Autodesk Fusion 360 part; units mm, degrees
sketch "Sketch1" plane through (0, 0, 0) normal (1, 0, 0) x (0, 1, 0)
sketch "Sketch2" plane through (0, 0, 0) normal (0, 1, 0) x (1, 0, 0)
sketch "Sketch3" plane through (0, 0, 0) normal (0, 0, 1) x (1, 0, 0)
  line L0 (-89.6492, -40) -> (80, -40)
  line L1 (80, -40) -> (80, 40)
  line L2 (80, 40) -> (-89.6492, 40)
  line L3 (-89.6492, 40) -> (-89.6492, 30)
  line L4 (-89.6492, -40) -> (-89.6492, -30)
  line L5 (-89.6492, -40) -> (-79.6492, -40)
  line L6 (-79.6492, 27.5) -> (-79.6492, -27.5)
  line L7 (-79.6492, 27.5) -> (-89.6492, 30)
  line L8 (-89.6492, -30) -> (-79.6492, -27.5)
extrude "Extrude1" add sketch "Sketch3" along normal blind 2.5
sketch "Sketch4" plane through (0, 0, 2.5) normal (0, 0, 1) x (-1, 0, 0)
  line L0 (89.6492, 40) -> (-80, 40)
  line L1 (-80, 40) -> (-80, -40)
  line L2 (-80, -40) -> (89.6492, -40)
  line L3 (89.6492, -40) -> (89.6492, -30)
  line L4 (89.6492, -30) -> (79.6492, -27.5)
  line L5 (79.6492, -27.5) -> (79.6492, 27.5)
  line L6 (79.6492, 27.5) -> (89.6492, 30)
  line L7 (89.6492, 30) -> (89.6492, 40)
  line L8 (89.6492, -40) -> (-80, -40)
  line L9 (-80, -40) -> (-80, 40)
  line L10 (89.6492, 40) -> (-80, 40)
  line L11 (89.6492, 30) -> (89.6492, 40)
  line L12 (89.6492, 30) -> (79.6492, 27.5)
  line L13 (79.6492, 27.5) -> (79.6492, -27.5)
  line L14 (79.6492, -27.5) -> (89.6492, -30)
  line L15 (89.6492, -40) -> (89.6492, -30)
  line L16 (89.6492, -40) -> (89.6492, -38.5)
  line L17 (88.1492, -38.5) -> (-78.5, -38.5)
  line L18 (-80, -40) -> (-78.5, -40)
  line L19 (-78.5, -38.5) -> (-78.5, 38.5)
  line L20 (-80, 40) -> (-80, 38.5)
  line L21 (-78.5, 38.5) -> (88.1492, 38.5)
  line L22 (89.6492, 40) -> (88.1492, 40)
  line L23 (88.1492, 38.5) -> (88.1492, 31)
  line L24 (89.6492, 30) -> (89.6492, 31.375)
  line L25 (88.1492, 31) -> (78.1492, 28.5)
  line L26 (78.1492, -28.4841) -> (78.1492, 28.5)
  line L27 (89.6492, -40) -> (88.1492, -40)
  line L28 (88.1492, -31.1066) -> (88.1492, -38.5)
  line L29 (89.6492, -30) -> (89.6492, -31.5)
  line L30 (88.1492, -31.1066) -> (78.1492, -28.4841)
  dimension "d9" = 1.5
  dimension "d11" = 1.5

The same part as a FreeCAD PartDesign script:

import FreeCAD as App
import Part
import Sketcher

doc = App.newDocument("Part")
body = doc.addObject("PartDesign::Body", "Body")

sketch1 = doc.addObject("Sketcher::SketchObject", "Sketch")
body.addObject(sketch1)
sketch1.AttachmentSupport = (doc.XY_Plane, [""])
sketch1.MapMode = "FlatFace"
sketch1.addGeometry([
    Part.LineSegment(App.Vector(-89.6492, -30, 0), App.Vector(-89.6492, -40, 0)),
    Part.LineSegment(App.Vector(-89.6492, -40, 0), App.Vector(80, -40, 0)),
    Part.LineSegment(App.Vector(80, -40, 0), App.Vector(80, 40, 0)),
    Part.LineSegment(App.Vector(80, 40, 0), App.Vector(-89.6492, 40, 0)),
    Part.LineSegment(App.Vector(-89.6492, 40, 0), App.Vector(-89.6492, 30, 0)),
    Part.LineSegment(App.Vector(-89.6492, 30, 0), App.Vector(-79.6492, 27.5, 0)),
    Part.LineSegment(App.Vector(-79.6492, 27.5, 0), App.Vector(-79.6492, -27.5, 0)),
    Part.LineSegment(App.Vector(-79.6492, -27.5, 0), App.Vector(-89.6492, -30, 0)),
], False)
sketch1.addConstraint([
    Sketcher.Constraint("Coincident", 0, 2, 1, 1),
    Sketcher.Constraint("Coincident", 1, 2, 2, 1),
    Sketcher.Constraint("Coincident", 2, 2, 3, 1),
    Sketcher.Constraint("Coincident", 3, 2, 4, 1),
    Sketcher.Constraint("Coincident", 4, 2, 5, 1),
    Sketcher.Constraint("Coincident", 5, 2, 6, 1),
    Sketcher.Constraint("Coincident", 6, 2, 7, 1),
    Sketcher.Constraint("Coincident", 7, 2, 0, 1),
    Sketcher.Constraint("Vertical", 0),
    Sketcher.Constraint("Horizontal", 1),
    Sketcher.Constraint("Vertical", 2),
    Sketcher.Constraint("Horizontal", 3),
    Sketcher.Constraint("Vertical", 4),
    Sketcher.Constraint("Vertical", 6),
    Sketcher.Constraint("Symmetric", 0, 2, 3, 2, -1),
    Sketcher.Constraint("Equal", 0, 4),
    Sketcher.Constraint("Equal", 5, 7),
    Sketcher.Constraint("DistanceY", 0, 2, 0, 1, 10.0),
    Sketcher.Constraint("DistanceY", 2, 1, 2, 2, 80.0),
    Sketcher.Constraint("DistanceY", 6, 2, 6, 1, 55.0),
    Sketcher.Constraint("DistanceX", -1, 1, 1, 2, 80.0),
    Sketcher.Constraint("DistanceX", 4, 2, 5, 2, 10.0),
    Sketcher.Constraint("DistanceX", 1, 1, 1, 2, 169.6492),
])
pad1 = doc.addObject("PartDesign::Pad", "Pad")
body.addObject(pad1)
pad1.Profile = sketch1
pad1.Length = 2.5

doc.recompute()
